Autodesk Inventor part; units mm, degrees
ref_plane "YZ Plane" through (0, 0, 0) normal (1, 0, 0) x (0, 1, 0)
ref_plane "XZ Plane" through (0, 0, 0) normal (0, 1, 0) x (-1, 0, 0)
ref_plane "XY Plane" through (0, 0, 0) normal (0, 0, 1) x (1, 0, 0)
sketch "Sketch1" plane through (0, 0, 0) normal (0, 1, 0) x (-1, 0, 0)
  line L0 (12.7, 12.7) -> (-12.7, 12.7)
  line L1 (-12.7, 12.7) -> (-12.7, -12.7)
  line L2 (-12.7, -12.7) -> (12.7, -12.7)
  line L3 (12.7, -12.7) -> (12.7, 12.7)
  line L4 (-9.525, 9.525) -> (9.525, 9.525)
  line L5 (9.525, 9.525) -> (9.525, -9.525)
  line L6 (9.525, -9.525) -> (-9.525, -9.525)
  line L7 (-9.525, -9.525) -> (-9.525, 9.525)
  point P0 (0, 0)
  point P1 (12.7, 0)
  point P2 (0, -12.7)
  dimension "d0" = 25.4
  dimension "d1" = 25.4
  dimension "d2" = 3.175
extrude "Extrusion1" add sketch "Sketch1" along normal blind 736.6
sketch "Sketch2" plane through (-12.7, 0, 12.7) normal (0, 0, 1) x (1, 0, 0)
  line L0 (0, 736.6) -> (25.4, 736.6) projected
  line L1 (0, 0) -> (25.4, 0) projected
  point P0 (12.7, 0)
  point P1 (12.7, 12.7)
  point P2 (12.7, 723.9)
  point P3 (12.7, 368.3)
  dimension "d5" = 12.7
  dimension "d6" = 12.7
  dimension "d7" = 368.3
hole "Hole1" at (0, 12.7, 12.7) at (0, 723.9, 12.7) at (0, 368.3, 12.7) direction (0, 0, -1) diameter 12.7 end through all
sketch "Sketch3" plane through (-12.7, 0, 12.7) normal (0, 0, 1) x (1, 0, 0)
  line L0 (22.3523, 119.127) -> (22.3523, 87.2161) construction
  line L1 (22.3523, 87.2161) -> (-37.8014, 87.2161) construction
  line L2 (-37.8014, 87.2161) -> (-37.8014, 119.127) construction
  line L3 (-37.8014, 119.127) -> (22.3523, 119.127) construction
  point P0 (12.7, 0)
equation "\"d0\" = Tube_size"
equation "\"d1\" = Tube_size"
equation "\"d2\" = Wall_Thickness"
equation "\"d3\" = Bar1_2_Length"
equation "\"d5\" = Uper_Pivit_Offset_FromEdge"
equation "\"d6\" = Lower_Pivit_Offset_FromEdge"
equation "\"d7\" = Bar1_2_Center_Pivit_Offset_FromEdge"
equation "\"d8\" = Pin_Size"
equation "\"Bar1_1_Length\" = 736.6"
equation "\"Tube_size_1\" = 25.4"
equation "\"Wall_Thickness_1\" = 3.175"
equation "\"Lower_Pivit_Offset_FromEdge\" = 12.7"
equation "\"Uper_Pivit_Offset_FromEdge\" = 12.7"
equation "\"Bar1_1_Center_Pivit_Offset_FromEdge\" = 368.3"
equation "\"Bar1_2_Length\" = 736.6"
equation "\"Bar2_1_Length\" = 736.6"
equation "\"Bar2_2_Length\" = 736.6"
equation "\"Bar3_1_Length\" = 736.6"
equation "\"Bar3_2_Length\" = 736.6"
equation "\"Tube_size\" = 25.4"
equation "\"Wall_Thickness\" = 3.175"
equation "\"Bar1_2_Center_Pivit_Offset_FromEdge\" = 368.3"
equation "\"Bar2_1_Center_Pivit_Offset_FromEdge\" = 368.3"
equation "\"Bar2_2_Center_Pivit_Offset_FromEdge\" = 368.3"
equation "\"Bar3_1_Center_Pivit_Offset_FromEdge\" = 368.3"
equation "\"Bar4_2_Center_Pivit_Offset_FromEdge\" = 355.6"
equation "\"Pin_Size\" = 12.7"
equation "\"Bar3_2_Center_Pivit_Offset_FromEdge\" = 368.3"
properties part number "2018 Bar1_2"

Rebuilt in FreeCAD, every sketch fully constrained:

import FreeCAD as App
import Part
import Sketcher
Q = App.Units.Quantity


def add_polygon(sketch, points):
    """Adds a closed chain of lines whose ends are joined by coincident constraints."""
    first, n = sketch.GeometryCount, len(points)
    for a, b in zip(points, points[1:] + points[:1]):
        sketch.addGeometry(Part.LineSegment(App.Vector(*a, 0), App.Vector(*b, 0)), False)
    for i in range(n):
        sketch.addConstraint(Sketcher.Constraint("Coincident", first + i, 2, first + (i + 1) % n, 1))

doc = App.newDocument("Part")
body = doc.addObject("PartDesign::Body", "Body")

# Sketch on XZ plane
sketch1 = body.newObject("Sketcher::SketchObject", "Sketch")
sketch1.AttachmentSupport = (doc.getObject("XZ_Plane"), [""])
sketch1.MapMode = "FlatFace"
add_polygon(sketch1, [(-13, -13), (-13, 13), (13, 13), (13, -13)])  # lines 0-3
add_polygon(sketch1, [(10, -10), (10, 10), (-10, 10), (-10, -10)])  # lines 4-7
sketch1.addConstraint(Sketcher.Constraint("Vertical", 0))
sketch1.addConstraint(Sketcher.Constraint("Horizontal", 1))
sketch1.addConstraint(Sketcher.Constraint("Vertical", 2))
sketch1.addConstraint(Sketcher.Constraint("Horizontal", 3))
sketch1.addConstraint(Sketcher.Constraint("Vertical", 4))
sketch1.addConstraint(Sketcher.Constraint("Horizontal", 5))
sketch1.addConstraint(Sketcher.Constraint("Vertical", 6))
sketch1.addConstraint(Sketcher.Constraint("Horizontal", 7))
sketch1.addConstraint(Sketcher.Constraint("Symmetric", 0, 2, 2, 2, -1, 1))
sketch1.addConstraint(Sketcher.Constraint("Symmetric", 4, 2, 6, 2, -1, 1))
sketch1.addConstraint(Sketcher.Constraint("Equal", 3, 0))
sketch1.addConstraint(Sketcher.Constraint("Equal", 7, 4))
sketch1.addConstraint(Sketcher.Constraint("DistanceX", 1, 1, 1, 2, Q("1 in")))
sketch1.addConstraint(Sketcher.Constraint("DistanceX", 4, 2, 1, 2, Q("0.125 in")))
pad1 = body.newObject("PartDesign::Pad", "Pad")
pad1.Profile = sketch1
pad1.Length = Q("29 in")
pad1.Reversed = True

# Sketch on XY plane
sketch2 = body.newObject("Sketcher::SketchObject", "Sketch001")
sketch2.AttachmentSupport = (doc.getObject("XY_Plane"), [""])
sketch2.MapMode = "FlatFace"
sketch2.AttachmentOffset = App.Placement(App.Vector(0, 0, 0.5 * 25.4), App.Rotation())
sketch2.addGeometry(Part.Circle(App.Vector(0, 13, 0), App.Vector(0, 0, 1), 6), False)
sketch2.addGeometry(Part.Circle(App.Vector(0, 724, 0), App.Vector(0, 0, 1), 6), False)
sketch2.addGeometry(Part.Circle(App.Vector(0, 368, 0), App.Vector(0, 0, 1), 6), False)
sketch2.addConstraint(Sketcher.Constraint("Equal", 0, 1))
sketch2.addConstraint(Sketcher.Constraint("Equal", 1, 2))
sketch2.addConstraint(Sketcher.Constraint("PointOnObject", 0, 3, -2))
sketch2.addConstraint(Sketcher.Constraint("PointOnObject", 1, 3, -2))
sketch2.addConstraint(Sketcher.Constraint("PointOnObject", 2, 3, -2))
sketch2.addConstraint(Sketcher.Constraint("Diameter", 0, Q("0.5 in")))
sketch2.addConstraint(Sketcher.Constraint("DistanceY", 0, 3, 1, 3, Q("28 in")))
sketch2.addConstraint(Sketcher.Constraint("DistanceY", 2, 3, 1, 3, Q("14 in")))
sketch2.addConstraint(Sketcher.Constraint("DistanceY", -1, 1, 0, 3, Q("0.5 in")))
doc.recompute()
hole = body.newObject("PartDesign::Hole", "Hole")
hole.Profile = sketch2
hole.ThreadType = "None"
hole.Diameter = Q("0.5 in")
hole.DepthType = "ThroughAll"

doc.recompute()
